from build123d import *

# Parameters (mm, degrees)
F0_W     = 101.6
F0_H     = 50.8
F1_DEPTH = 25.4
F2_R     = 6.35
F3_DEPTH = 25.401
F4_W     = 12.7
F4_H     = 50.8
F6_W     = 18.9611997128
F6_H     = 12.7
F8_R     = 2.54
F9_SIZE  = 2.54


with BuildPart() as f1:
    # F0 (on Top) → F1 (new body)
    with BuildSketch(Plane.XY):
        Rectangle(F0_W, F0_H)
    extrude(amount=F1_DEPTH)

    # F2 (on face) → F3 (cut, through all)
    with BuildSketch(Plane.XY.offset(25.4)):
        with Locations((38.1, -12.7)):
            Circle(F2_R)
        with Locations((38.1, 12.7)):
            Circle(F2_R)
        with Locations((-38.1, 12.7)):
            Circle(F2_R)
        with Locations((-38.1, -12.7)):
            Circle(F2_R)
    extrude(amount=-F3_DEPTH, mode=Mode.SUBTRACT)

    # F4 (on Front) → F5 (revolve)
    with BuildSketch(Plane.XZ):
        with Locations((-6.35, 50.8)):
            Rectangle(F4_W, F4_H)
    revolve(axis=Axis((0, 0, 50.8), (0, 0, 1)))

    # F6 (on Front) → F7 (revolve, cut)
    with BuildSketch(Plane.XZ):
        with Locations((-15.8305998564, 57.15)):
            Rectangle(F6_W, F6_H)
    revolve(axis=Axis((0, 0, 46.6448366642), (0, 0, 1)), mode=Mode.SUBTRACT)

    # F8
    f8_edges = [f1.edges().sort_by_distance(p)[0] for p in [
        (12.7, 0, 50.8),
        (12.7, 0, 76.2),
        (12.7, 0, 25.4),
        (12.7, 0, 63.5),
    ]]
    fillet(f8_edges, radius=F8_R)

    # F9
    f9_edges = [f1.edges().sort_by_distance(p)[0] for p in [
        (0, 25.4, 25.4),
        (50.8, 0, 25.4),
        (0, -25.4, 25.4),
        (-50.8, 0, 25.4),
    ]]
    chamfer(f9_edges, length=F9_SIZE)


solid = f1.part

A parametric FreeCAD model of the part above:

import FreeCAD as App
import Part
import Sketcher
from FreeCAD import Vector
Q = App.Units.Quantity


def edges_at(feature, points):
    """Names of the edges that pass closest to the given points."""
    edges = feature.Shape.Edges
    near = lambda p: min(range(len(edges)), key=lambda i: edges[i].distToShape(Part.Vertex(*p))[0])
    return sorted({f"Edge{near(p) + 1}" for p in points})


def add_polygon(sketch, points):
    """Adds a closed chain of lines whose ends are joined by coincident constraints."""
    first, n = sketch.GeometryCount, len(points)
    for a, b in zip(points, points[1:] + points[:1]):
        sketch.addGeometry(Part.LineSegment(App.Vector(*a, 0), App.Vector(*b, 0)), False)
    for i in range(n):
        sketch.addConstraint(Sketcher.Constraint("Coincident", first + i, 2, first + (i + 1) % n, 1))

doc = App.newDocument("Part")
params = doc.addObject("Spreadsheet::Sheet", "Params")
for row, (alias, value) in enumerate([
    ("sketch1_width", "4 in"),
    ("sketch1_height", "2 in"),
    ("pad1_length", "1 in"),
    ("sketch2_diameter", "0.5 in"),
    ("sketch3_height", "2 in"),
    ("sketch3_width", "0.5 in"),
    ("revolution_angle", "360 deg"),
    ("sketch4_height", "0.5 in"),
    ("groove_angle", "360 deg"),
    ("fillet_radius", "0.1 in"),
    ("chamfer_size", "0.1 in"),
], start=1):
    params.set(f"A{row}", alias)
    params.set(f"B{row}", "=" + value)
    params.setAlias(f"B{row}", alias)

body = doc.addObject("PartDesign::Body", "Body")

# Sketch on XY plane
sketch1 = body.newObject("Sketcher::SketchObject", "Sketch")
sketch1.AttachmentSupport = (doc.getObject("XY_Plane"), [""])
sketch1.MapMode = "FlatFace"
add_polygon(sketch1, [(-51, 25), (-51, -25), (51, -25), (51, 25)])  # lines 0-3
sketch1.addConstraint([
    Sketcher.Constraint("Vertical", 0),
    Sketcher.Constraint("Horizontal", 1),
    Sketcher.Constraint("Vertical", 2),
    Sketcher.Constraint("Horizontal", 3),
    Sketcher.Constraint("Symmetric", 0, 2, 2, 2, -1, 1),
    Sketcher.Constraint("DistanceX", 1, 1, 1, 2, Q("4 in")),
    Sketcher.Constraint("DistanceY", 0, 2, 0, 1, Q("2 in")),
])
sketch1.setExpression("Constraints[9]", "Params.sketch1_width")
sketch1.setExpression("Constraints[10]", "Params.sketch1_height")
pad1 = body.newObject("PartDesign::Pad", "Pad")
pad1.Profile = sketch1
pad1.setExpression("Length", "Params.pad1_length")

# Sketch on XY plane
sketch2 = body.newObject("Sketcher::SketchObject", "Sketch001")
sketch2.AttachmentSupport = (doc.getObject("XY_Plane"), [""])
sketch2.MapMode = "FlatFace"
sketch2.AttachmentOffset = App.Placement(Vector(0, 0, 1 * 25.4), App.Rotation())
sketch2.addGeometry([
    Part.Circle(Vector(38, -13, 0), Vector(0, 0, 1), 6),
    Part.Circle(Vector(38, 13, 0), Vector(0, 0, 1), 6),
    Part.Circle(Vector(-38, 13, 0), Vector(0, 0, 1), 6),
    Part.Circle(Vector(-38, -13, 0), Vector(0, 0, 1), 6),
], False)
sketch2.addConstraint([
    Sketcher.Constraint("Equal", 0, 1),
    Sketcher.Constraint("Equal", 1, 2),
    Sketcher.Constraint("Equal", 2, 3),
    Sketcher.Constraint("Symmetric", 0, 3, 2, 3, -1, 1),
    Sketcher.Constraint("Symmetric", 1, 3, 3, 3, -1, 1),
    Sketcher.Constraint("Symmetric", 1, 3, 2, 3, -2),
    Sketcher.Constraint("Diameter", 0, Q("0.5 in")),
    Sketcher.Constraint("DistanceY", 0, 3, 1, 3, Q("1 in")),
    Sketcher.Constraint("DistanceX", 2, 3, 1, 3, Q("3 in")),
])
sketch2.setExpression("Constraints[6]", "Params.sketch2_diameter")
pocket1 = body.newObject("PartDesign::Pocket", "Pocket")
pocket1.Profile = sketch2
pocket1.Type = "ThroughAll"

# Sketch on XZ plane
sketch3 = body.newObject("Sketcher::SketchObject", "Sketch002")
sketch3.AttachmentSupport = (doc.getObject("XZ_Plane"), [""])
sketch3.MapMode = "FlatFace"
add_polygon(sketch3, [(-13, 76), (-13, 25), (0, 25), (0, 76)])  # lines 0-3
sketch3.addConstraint([
    Sketcher.Constraint("Vertical", 0),
    Sketcher.Constraint("Horizontal", 1),
    Sketcher.Constraint("Vertical", 2),
    Sketcher.Constraint("Horizontal", 3),
    Sketcher.Constraint("PointOnObject", 1, 2, -2),
    Sketcher.Constraint("DistanceY", 0, 2, 0, 1, Q("2 in")),
    Sketcher.Constraint("DistanceX", 1, 1, 1, 2, Q("0.5 in")),
    Sketcher.Constraint("DistanceY", -1, 1, 0, 2, Q("1 in")),
])
sketch3.setExpression("Constraints[9]", "Params.sketch3_height")
sketch3.setExpression("Constraints[10]", "Params.sketch3_width")
revolution = body.newObject("PartDesign::Revolution", "Revolution")
revolution.Profile = sketch3
revolution.ReferenceAxis = (sketch3, ["V_Axis"])
revolution.setExpression("Angle", "Params.revolution_angle")

# Sketch on XZ plane
sketch4 = body.newObject("Sketcher::SketchObject", "Sketch003")
sketch4.AttachmentSupport = (doc.getObject("XZ_Plane"), [""])
sketch4.MapMode = "FlatFace"
add_polygon(sketch4, [(-25, 64), (-25, 51), (-6, 51), (-6, 64)])  # lines 0-3
sketch4.addConstraint([
    Sketcher.Constraint("Vertical", 0),
    Sketcher.Constraint("Horizontal", 1),
    Sketcher.Constraint("Vertical", 2),
    Sketcher.Constraint("Horizontal", 3),
    Sketcher.Constraint("DistanceY", 0, 2, 0, 1, Q("0.5 in")),
    Sketcher.Constraint("DistanceY", -1, 1, 0, 2, Q("2 in")),
    Sketcher.Constraint("DistanceX", 1, 2, -1, 1, Q("0.25 in")),
    Sketcher.Constraint("DistanceX", 1, 1, 1, 2, Q("18.9612 mm")),
])
sketch4.setExpression("Constraints[8]", "Params.sketch4_height")
groove = body.newObject("PartDesign::Groove", "Groove")
groove.Profile = sketch4
groove.ReferenceAxis = (sketch4, ["V_Axis"])
groove.setExpression("Angle", "Params.groove_angle")
doc.recompute()

fillet = body.newObject("PartDesign::Fillet", "Fillet")
fillet.Base = (groove, edges_at(groove, [
    (12.7, 0, 50.8),
    (12.7, 0, 76.2),
    (12.7, 0, 25.4),
    (12.7, 0, 63.5),
]))
fillet.setExpression("Radius", "Params.fillet_radius")
doc.recompute()

chamfer = body.newObject("PartDesign::Chamfer", "Chamfer")
chamfer.Base = (fillet, edges_at(fillet, [
    (0, 25.4, 25.4),
    (50.8, 0, 25.4),
    (0, -25.4, 25.4),
    (-50.8, 0, 25.4),
]))
chamfer.setExpression("Size", "Params.chamfer_size")

doc.recompute()
